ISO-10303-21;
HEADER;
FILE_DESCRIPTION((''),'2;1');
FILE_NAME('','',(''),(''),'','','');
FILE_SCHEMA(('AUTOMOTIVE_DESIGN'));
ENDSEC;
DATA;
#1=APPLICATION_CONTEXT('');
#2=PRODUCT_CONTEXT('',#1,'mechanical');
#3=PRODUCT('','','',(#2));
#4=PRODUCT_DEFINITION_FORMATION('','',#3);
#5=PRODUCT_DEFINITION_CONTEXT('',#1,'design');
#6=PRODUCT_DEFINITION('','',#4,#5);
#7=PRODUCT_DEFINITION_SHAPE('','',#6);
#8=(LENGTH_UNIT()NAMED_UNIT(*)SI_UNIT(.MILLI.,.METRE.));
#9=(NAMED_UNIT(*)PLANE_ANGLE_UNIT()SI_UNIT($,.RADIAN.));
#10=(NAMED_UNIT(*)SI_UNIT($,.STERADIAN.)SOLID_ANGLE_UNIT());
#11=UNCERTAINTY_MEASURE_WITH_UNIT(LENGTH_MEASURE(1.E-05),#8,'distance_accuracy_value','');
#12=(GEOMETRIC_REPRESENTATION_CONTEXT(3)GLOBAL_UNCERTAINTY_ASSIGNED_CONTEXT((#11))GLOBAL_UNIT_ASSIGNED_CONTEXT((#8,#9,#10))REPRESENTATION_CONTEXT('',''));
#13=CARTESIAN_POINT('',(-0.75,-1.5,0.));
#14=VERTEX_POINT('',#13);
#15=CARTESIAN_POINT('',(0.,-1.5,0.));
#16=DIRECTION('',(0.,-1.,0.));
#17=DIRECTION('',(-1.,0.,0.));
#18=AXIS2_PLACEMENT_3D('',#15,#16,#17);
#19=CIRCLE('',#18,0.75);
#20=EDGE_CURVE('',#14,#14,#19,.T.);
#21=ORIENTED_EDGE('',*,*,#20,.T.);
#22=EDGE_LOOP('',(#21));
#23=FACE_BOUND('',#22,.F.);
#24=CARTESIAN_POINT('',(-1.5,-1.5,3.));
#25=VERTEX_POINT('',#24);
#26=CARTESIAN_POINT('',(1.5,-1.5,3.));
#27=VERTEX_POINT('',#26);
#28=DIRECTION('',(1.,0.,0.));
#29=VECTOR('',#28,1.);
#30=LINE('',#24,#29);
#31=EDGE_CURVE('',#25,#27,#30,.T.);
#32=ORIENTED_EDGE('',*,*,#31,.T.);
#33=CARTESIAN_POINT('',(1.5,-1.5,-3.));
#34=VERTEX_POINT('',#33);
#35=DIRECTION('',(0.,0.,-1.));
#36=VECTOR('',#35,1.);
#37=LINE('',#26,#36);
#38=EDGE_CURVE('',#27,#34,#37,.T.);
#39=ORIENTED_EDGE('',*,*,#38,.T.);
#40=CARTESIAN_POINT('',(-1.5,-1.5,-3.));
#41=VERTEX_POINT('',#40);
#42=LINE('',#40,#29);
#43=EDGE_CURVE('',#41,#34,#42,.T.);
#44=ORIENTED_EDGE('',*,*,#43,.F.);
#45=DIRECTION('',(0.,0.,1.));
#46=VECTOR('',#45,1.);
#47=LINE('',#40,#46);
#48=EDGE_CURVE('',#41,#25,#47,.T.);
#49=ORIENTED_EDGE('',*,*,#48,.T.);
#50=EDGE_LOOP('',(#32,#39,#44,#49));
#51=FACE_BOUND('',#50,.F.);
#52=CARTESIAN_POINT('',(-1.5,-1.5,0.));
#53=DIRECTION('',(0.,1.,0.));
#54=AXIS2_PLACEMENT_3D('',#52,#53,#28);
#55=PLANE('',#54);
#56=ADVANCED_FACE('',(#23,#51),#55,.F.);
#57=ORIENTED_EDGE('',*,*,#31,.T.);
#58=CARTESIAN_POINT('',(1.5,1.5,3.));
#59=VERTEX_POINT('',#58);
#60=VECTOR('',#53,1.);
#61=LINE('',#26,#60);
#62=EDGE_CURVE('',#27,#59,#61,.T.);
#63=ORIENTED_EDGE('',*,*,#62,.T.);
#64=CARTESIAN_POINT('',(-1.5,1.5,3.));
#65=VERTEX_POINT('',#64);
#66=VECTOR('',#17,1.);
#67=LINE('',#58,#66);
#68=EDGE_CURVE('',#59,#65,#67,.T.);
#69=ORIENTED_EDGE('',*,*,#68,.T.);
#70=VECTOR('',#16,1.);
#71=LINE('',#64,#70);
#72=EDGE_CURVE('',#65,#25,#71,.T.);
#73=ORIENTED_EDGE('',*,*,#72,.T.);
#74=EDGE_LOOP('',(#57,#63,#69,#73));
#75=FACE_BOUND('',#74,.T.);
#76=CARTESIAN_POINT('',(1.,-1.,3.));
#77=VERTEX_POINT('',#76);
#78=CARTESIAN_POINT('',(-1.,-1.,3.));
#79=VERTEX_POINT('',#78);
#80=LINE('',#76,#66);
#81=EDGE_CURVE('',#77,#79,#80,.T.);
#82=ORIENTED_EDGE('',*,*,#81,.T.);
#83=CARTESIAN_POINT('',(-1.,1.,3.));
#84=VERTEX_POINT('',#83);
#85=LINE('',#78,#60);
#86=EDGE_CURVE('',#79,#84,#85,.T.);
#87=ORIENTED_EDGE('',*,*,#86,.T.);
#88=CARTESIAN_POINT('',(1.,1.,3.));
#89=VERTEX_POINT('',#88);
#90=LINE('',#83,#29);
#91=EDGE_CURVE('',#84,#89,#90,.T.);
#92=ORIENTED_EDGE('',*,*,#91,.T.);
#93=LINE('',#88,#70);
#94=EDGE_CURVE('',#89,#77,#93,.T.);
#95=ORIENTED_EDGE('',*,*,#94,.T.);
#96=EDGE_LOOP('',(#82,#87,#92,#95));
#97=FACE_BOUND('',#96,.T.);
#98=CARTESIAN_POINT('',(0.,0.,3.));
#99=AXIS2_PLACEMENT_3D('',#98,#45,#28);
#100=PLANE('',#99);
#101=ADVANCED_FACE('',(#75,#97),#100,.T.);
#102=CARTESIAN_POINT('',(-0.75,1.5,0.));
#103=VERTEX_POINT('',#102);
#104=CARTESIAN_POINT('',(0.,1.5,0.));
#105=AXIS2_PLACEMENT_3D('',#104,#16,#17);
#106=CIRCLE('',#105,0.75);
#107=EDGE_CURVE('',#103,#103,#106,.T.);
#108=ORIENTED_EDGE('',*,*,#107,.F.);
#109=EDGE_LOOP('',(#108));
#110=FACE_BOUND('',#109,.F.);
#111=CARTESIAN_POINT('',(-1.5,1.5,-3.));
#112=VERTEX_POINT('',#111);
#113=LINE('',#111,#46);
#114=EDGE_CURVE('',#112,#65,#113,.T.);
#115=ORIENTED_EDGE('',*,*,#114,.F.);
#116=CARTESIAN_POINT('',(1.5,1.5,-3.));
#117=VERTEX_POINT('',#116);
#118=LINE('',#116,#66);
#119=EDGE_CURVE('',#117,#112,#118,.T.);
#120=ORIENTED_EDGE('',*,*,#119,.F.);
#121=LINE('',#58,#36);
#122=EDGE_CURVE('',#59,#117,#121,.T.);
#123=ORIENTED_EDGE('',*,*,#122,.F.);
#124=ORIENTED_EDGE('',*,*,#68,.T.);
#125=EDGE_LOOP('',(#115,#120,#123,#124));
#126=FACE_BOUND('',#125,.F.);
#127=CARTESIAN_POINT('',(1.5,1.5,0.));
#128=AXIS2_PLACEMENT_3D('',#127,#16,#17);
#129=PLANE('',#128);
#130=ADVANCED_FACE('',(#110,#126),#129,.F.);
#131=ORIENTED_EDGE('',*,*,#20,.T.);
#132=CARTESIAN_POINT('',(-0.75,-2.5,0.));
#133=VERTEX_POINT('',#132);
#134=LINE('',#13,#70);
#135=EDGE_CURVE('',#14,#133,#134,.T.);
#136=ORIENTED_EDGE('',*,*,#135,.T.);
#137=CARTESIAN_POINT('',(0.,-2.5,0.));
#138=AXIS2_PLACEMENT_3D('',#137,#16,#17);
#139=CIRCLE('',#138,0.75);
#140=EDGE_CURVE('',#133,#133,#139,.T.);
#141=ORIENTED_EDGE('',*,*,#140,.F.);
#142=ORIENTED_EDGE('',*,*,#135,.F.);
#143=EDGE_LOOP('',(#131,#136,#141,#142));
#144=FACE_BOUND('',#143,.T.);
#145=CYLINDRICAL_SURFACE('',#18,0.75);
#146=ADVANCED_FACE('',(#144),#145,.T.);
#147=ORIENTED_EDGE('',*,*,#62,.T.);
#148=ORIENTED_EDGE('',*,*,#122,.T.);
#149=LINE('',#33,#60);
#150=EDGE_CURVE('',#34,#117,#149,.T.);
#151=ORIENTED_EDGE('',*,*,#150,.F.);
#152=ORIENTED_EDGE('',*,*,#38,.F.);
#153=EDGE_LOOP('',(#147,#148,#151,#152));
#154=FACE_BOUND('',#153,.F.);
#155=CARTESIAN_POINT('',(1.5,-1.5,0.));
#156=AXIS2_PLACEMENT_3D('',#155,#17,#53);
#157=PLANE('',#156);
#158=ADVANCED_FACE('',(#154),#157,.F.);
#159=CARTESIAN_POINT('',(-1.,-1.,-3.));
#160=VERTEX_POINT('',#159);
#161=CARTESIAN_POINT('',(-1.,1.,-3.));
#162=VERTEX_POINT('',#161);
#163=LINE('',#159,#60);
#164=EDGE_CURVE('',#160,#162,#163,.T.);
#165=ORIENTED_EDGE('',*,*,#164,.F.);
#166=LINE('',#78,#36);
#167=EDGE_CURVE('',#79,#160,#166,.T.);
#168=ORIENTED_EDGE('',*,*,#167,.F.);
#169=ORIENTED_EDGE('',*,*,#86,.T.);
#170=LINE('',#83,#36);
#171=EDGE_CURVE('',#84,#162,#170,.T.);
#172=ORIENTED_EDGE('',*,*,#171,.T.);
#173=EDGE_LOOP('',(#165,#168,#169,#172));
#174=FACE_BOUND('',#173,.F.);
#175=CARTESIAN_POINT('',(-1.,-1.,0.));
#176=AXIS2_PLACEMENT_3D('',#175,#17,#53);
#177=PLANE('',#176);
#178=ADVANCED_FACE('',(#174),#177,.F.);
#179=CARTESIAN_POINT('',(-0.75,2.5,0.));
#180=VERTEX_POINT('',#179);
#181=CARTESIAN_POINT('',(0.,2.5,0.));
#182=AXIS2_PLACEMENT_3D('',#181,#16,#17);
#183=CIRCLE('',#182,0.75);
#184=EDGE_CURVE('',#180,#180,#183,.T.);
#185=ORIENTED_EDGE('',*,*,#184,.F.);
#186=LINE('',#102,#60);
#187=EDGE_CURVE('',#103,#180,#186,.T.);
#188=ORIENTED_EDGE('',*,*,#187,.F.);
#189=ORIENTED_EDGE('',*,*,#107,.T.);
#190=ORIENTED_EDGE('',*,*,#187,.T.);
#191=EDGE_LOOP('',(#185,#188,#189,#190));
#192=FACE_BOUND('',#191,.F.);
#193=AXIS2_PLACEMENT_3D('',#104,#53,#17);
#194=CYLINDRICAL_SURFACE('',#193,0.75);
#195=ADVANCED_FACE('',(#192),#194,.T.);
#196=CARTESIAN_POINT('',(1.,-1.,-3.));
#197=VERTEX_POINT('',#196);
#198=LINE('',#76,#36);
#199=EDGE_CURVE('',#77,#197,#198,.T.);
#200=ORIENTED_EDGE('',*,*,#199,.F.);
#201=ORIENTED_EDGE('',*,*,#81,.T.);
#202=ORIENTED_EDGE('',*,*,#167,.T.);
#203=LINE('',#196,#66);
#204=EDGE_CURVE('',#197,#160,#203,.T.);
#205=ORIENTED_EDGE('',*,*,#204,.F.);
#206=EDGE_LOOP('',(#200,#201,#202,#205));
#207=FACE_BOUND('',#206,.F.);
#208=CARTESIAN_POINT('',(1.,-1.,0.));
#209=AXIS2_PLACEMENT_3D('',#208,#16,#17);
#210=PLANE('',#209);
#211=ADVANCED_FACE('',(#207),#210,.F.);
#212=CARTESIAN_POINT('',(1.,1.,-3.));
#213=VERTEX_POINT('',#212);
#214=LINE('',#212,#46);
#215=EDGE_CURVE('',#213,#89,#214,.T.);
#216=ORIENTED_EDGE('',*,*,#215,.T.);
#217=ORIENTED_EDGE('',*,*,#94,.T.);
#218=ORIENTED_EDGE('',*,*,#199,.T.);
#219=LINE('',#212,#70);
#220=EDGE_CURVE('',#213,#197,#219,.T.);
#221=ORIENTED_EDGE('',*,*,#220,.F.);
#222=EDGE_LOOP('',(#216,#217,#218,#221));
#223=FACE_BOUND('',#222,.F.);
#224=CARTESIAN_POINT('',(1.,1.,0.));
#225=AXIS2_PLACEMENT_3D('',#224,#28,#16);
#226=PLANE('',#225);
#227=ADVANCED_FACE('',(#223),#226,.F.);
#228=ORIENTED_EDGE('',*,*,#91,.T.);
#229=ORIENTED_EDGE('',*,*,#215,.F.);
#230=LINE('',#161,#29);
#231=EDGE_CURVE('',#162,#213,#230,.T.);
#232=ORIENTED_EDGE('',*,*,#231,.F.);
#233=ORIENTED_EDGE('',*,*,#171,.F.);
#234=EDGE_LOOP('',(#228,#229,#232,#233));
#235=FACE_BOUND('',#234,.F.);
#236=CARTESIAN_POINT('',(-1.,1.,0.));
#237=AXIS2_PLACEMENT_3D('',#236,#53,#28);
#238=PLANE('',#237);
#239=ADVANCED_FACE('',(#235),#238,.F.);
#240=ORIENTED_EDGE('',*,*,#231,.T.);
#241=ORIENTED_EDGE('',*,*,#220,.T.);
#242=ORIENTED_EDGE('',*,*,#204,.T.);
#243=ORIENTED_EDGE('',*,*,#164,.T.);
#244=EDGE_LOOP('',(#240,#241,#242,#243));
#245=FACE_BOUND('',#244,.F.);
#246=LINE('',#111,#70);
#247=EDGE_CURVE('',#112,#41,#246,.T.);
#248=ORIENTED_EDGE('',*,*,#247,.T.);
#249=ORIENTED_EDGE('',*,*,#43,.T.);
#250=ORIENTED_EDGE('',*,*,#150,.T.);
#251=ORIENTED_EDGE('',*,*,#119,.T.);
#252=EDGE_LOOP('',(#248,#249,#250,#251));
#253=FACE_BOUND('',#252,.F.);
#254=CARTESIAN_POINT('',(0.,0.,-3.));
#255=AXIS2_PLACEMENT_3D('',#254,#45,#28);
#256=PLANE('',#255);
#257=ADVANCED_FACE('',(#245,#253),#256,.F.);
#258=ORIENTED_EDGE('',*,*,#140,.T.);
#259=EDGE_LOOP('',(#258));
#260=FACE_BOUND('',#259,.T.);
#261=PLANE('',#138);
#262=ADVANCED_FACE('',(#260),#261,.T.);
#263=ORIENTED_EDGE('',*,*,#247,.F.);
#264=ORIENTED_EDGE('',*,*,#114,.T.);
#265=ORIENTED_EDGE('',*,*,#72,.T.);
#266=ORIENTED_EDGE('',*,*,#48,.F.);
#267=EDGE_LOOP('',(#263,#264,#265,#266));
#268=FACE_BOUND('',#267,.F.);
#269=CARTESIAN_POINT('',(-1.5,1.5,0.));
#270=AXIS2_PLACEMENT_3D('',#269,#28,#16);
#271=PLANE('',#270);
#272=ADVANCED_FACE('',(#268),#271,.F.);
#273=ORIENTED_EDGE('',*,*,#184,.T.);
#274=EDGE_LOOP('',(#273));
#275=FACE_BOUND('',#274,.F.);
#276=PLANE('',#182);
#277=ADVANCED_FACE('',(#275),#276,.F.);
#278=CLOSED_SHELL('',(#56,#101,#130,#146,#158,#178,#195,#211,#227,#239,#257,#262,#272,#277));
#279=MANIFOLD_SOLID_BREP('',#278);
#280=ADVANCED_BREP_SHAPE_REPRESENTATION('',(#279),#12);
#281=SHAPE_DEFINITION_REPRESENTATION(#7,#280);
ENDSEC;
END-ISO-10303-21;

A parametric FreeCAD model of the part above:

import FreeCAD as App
import Part
import Sketcher
from FreeCAD import Vector
Q = App.Units.Quantity


def add_polygon(sketch, points):
    """Adds a closed chain of lines whose ends are joined by coincident constraints."""
    first, n = sketch.GeometryCount, len(points)
    for a, b in zip(points, points[1:] + points[:1]):
        sketch.addGeometry(Part.LineSegment(App.Vector(*a, 0), App.Vector(*b, 0)), False)
    for i in range(n):
        sketch.addConstraint(Sketcher.Constraint("Coincident", first + i, 2, first + (i + 1) % n, 1))

doc = App.newDocument("Part")
params = doc.addObject("Spreadsheet::Sheet", "Params")
for row, (alias, value) in enumerate([
    ("sketch1_width", "3 mm"),
    ("sketch1_width2", "2 mm"),
    ("pad1_length", "6 mm"),
    ("sketch2_height", "1 mm"),
    ("sketch2_width", "0.75 mm"),
    ("revolution_angle", "360 deg"),
], start=1):
    params.set(f"A{row}", alias)
    params.set(f"B{row}", "=" + value)
    params.setAlias(f"B{row}", alias)

body = doc.addObject("PartDesign::Body", "Body")

# Sketch on XY plane
sketch1 = body.newObject("Sketcher::SketchObject", "Sketch")
sketch1.AttachmentSupport = (doc.getObject("XY_Plane"), [""])
sketch1.MapMode = "FlatFace"
add_polygon(sketch1, [(1.5, 1.5), (-1.5, 1.5), (-1.5, -1.5), (1.5, -1.5)])  # lines 0-3
add_polygon(sketch1, [(-1, 1), (1, 1), (1, -1), (-1, -1)])  # lines 4-7
sketch1.addConstraint([
    Sketcher.Constraint("Horizontal", 0),
    Sketcher.Constraint("Vertical", 1),
    Sketcher.Constraint("Horizontal", 2),
    Sketcher.Constraint("Vertical", 3),
    Sketcher.Constraint("Horizontal", 4),
    Sketcher.Constraint("Vertical", 5),
    Sketcher.Constraint("Horizontal", 6),
    Sketcher.Constraint("Vertical", 7),
    Sketcher.Constraint("Symmetric", 0, 2, 2, 2, -1, 1),
    Sketcher.Constraint("Symmetric", 4, 2, 6, 2, -1, 1),
    Sketcher.Constraint("Equal", 2, 1),
    Sketcher.Constraint("Equal", 6, 5),
    Sketcher.Constraint("DistanceX", 0, 2, 0, 1, Q("3 mm")),
    Sketcher.Constraint("DistanceX", 4, 1, 4, 2, Q("2 mm")),
])
sketch1.setExpression("Constraints[20]", "Params.sketch1_width")
sketch1.setExpression("Constraints[21]", "Params.sketch1_width2")
pad1 = body.newObject("PartDesign::Pad", "Pad")
pad1.Profile = sketch1
pad1.setExpression("Length", "Params.pad1_length")
pad1.Midplane = True

# Sketch on XY plane
sketch2 = body.newObject("Sketcher::SketchObject", "Sketch001")
sketch2.AttachmentSupport = (doc.getObject("XY_Plane"), [""])
sketch2.MapMode = "FlatFace"
add_polygon(sketch2, [(-0.8, 2.5), (-0.8, 1.5), (0, 1.5), (0, 2.5)])  # lines 0-3
add_polygon(sketch2, [(0, -2.5), (0, -1.5), (-0.8, -1.5), (-0.8, -2.5)])  # lines 4-7
sketch2.addConstraint([
    Sketcher.Constraint("Vertical", 0),
    Sketcher.Constraint("Horizontal", 1),
    Sketcher.Constraint("Vertical", 2),
    Sketcher.Constraint("Horizontal", 3),
    Sketcher.Constraint("Vertical", 4),
    Sketcher.Constraint("Horizontal", 5),
    Sketcher.Constraint("Vertical", 6),
    Sketcher.Constraint("Horizontal", 7),
    Sketcher.Constraint("Symmetric", 1, 2, 4, 2, -1, 1),
    Sketcher.Constraint("Symmetric", 3, 2, 6, 2, -1),
    Sketcher.Constraint("PointOnObject", 1, 2, -2),
    Sketcher.Constraint("DistanceY", 0, 2, 0, 1, Q("1 mm")),
    Sketcher.Constraint("DistanceX", 1, 1, 1, 2, Q("0.75 mm")),
    Sketcher.Constraint("DistanceY", 4, 2, 1, 2, Q("3 mm")),
])
sketch2.setExpression("Constraints[19]", "Params.sketch2_height")
sketch2.setExpression("Constraints[20]", "Params.sketch2_width")
revolution = body.newObject("PartDesign::Revolution", "Revolution")
revolution.Profile = sketch2
revolution.ReferenceAxis = (sketch2, ["V_Axis"])
revolution.setExpression("Angle", "Params.revolution_angle")

doc.recompute()
